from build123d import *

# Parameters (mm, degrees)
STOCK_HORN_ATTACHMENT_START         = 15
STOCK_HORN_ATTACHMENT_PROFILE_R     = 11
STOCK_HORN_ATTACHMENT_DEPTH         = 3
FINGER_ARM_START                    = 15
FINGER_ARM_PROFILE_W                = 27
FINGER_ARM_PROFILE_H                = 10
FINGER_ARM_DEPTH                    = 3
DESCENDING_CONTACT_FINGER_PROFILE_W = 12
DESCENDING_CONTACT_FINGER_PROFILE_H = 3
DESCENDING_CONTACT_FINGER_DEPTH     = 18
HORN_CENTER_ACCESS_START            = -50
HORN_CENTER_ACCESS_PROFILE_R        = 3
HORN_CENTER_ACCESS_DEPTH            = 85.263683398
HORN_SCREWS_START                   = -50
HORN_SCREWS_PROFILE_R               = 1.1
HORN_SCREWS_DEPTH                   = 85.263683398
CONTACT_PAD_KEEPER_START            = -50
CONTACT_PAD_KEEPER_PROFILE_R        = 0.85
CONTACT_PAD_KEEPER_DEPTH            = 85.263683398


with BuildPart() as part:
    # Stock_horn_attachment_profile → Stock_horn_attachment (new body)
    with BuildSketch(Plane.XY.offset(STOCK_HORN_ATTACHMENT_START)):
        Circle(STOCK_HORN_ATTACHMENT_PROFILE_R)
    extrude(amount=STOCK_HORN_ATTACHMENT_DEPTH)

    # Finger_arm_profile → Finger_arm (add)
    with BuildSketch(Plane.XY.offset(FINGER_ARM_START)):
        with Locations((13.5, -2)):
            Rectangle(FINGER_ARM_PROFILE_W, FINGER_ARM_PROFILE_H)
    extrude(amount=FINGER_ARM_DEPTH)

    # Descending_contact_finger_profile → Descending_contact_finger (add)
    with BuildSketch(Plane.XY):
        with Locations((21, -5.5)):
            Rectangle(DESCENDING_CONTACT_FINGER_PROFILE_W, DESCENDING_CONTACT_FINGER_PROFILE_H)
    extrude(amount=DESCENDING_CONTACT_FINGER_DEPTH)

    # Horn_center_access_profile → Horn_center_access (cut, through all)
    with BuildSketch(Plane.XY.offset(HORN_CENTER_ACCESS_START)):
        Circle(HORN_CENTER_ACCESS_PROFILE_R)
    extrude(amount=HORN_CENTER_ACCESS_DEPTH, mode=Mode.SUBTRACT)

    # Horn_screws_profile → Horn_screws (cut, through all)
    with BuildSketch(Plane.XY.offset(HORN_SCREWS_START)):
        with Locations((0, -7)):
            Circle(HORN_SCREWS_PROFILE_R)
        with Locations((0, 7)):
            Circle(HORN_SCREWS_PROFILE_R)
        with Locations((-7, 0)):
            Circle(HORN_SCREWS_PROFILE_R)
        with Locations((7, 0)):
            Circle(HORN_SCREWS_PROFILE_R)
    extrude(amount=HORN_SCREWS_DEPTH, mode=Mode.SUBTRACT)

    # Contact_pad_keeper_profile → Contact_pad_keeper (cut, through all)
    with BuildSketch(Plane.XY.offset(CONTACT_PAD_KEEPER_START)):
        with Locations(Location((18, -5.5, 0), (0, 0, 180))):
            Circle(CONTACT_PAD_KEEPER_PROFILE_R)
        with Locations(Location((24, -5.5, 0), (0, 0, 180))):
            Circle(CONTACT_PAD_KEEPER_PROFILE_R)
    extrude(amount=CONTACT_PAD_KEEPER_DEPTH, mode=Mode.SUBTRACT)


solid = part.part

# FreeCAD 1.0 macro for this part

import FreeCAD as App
import Part
import Sketcher

V = App.Vector


def add_polygon(sketch, points):
    """Adds a closed chain of lines whose ends are joined by coincident constraints."""
    first, n = sketch.GeometryCount, len(points)
    for a, b in zip(points, points[1:] + points[:1]):
        sketch.addGeometry(Part.LineSegment(App.Vector(*a, 0), App.Vector(*b, 0)), False)
    for i in range(n):
        sketch.addConstraint(Sketcher.Constraint("Coincident", first + i, 2, first + (i + 1) % n, 1))

doc = App.newDocument("Part")
body = doc.addObject("PartDesign::Body", "Body")

sketch1 = doc.addObject("Sketcher::SketchObject", "Sketch")
body.addObject(sketch1)
sketch1.AttachmentSupport = (doc.XY_Plane, [""])
sketch1.MapMode = "FlatFace"
sketch1.AttachmentOffset = App.Placement(V(0, 0, 15), App.Rotation())
sketch1.addGeometry(Part.Circle(V(0, 0, 0), V(0, 0, 1), 11), False)
sketch1.addConstraint([
    Sketcher.Constraint("Coincident", 0, 3, -1, 1),
    Sketcher.Constraint("Diameter", 0, 22.0),
])
pad1 = doc.addObject("PartDesign::Pad", "Pad")
body.addObject(pad1)
pad1.Profile = sketch1
pad1.Length = 3

sketch2 = doc.addObject("Sketcher::SketchObject", "Sketch001")
body.addObject(sketch2)
sketch2.AttachmentSupport = (doc.XY_Plane, [""])
sketch2.MapMode = "FlatFace"
sketch2.AttachmentOffset = App.Placement(V(0, 0, 15), App.Rotation())
add_polygon(sketch2, [(0, 3), (0, -7), (27, -7), (27, 3)])
sketch2.addConstraint([
    Sketcher.Constraint("Vertical", 0),
    Sketcher.Constraint("Horizontal", 1),
    Sketcher.Constraint("Vertical", 2),
    Sketcher.Constraint("Horizontal", 3),
    Sketcher.Constraint("PointOnObject", 0, 2, -2),
    Sketcher.Constraint("DistanceX", 1, 1, 1, 2, 27.0),
    Sketcher.Constraint("DistanceY", 0, 2, 0, 1, 10.0),
    Sketcher.Constraint("DistanceY", 0, 2, -1, 1, 7.0),
])
pad2 = doc.addObject("PartDesign::Pad", "Pad001")
body.addObject(pad2)
pad2.Profile = sketch2
pad2.Length = 3

sketch3 = doc.addObject("Sketcher::SketchObject", "Sketch002")
body.addObject(sketch3)
sketch3.AttachmentSupport = (doc.XY_Plane, [""])
sketch3.MapMode = "FlatFace"
add_polygon(sketch3, [(15, -4), (15, -7), (27, -7), (27, -4)])
sketch3.addConstraint([
    Sketcher.Constraint("Vertical", 0),
    Sketcher.Constraint("Horizontal", 1),
    Sketcher.Constraint("Vertical", 2),
    Sketcher.Constraint("Horizontal", 3),
    Sketcher.Constraint("DistanceX", 1, 1, 1, 2, 12.0),
    Sketcher.Constraint("DistanceY", 0, 2, 0, 1, 3.0),
    Sketcher.Constraint("DistanceX", -1, 1, 0, 2, 15.0),
    Sketcher.Constraint("DistanceY", 0, 2, -1, 1, 7.0),
])
pad3 = doc.addObject("PartDesign::Pad", "Pad002")
body.addObject(pad3)
pad3.Profile = sketch3
pad3.Length = 18

sketch4 = doc.addObject("Sketcher::SketchObject", "Sketch003")
body.addObject(sketch4)
sketch4.AttachmentSupport = (doc.XY_Plane, [""])
sketch4.MapMode = "FlatFace"
sketch4.AttachmentOffset = App.Placement(V(0, 0, -50), App.Rotation())
sketch4.addGeometry(Part.Circle(V(0, 0, 0), V(0, 0, 1), 3), False)
sketch4.addConstraint([
    Sketcher.Constraint("Coincident", 0, 3, -1, 1),
    Sketcher.Constraint("Diameter", 0, 6.0),
])
pocket1 = doc.addObject("PartDesign::Pocket", "Pocket")
body.addObject(pocket1)
pocket1.Profile = sketch4
pocket1.Type = "ThroughAll"
pocket1.Reversed = True

sketch5 = doc.addObject("Sketcher::SketchObject", "Sketch004")
body.addObject(sketch5)
sketch5.AttachmentSupport = (doc.XY_Plane, [""])
sketch5.MapMode = "FlatFace"
sketch5.AttachmentOffset = App.Placement(V(0, 0, -50), App.Rotation())
sketch5.addGeometry([
    Part.Circle(V(0, -7, 0), V(0, 0, 1), 1.1),
    Part.Circle(V(0, 7, 0), V(0, 0, 1), 1.1),
    Part.Circle(V(-7, 0, 0), V(0, 0, 1), 1.1),
    Part.Circle(V(7, 0, 0), V(0, 0, 1), 1.1),
], False)
sketch5.addConstraint([
    Sketcher.Constraint("Equal", 0, 1),
    Sketcher.Constraint("Equal", 1, 2),
    Sketcher.Constraint("Equal", 2, 3),
    Sketcher.Constraint("Symmetric", 0, 3, 1, 3, -1, 1),
    Sketcher.Constraint("Symmetric", 2, 3, 3, 3, -1, 1),
    Sketcher.Constraint("PointOnObject", 0, 3, -2),
    Sketcher.Constraint("PointOnObject", 2, 3, -1),
    Sketcher.Constraint("Diameter", 0, 2.2),
    Sketcher.Constraint("DistanceY", 0, 3, -1, 1, 7.0),
    Sketcher.Constraint("DistanceX", 2, 3, -1, 1, 7.0),
])
pocket2 = doc.addObject("PartDesign::Pocket", "Pocket001")
body.addObject(pocket2)
pocket2.Profile = sketch5
pocket2.Type = "ThroughAll"
pocket2.Reversed = True

sketch6 = doc.addObject("Sketcher::SketchObject", "Sketch005")
body.addObject(sketch6)
sketch6.AttachmentSupport = (doc.XY_Plane, [""])
sketch6.MapMode = "FlatFace"
sketch6.AttachmentOffset = App.Placement(V(0, 0, -50), App.Rotation())
sketch6.addGeometry([
    Part.Circle(V(18, -5.5, 0), V(0, 0, 1), 0.8),
    Part.Circle(V(24, -5.5, 0), V(0, 0, 1), 0.8),
], False)
sketch6.addConstraint([
    Sketcher.Constraint("Equal", 0, 1),
    Sketcher.Constraint("Horizontal", 0, 3, 1, 3),
    Sketcher.Constraint("Diameter", 0, 1.7),
    Sketcher.Constraint("DistanceX", -1, 1, 0, 3, 18.0),
    Sketcher.Constraint("DistanceX", -1, 1, 1, 3, 24.0),
    Sketcher.Constraint("DistanceY", 0, 3, -1, 1, 5.5),
])
pocket3 = doc.addObject("PartDesign::Pocket", "Pocket002")
body.addObject(pocket3)
pocket3.Profile = sketch6
pocket3.Type = "ThroughAll"
pocket3.Reversed = True

doc.recompute()
